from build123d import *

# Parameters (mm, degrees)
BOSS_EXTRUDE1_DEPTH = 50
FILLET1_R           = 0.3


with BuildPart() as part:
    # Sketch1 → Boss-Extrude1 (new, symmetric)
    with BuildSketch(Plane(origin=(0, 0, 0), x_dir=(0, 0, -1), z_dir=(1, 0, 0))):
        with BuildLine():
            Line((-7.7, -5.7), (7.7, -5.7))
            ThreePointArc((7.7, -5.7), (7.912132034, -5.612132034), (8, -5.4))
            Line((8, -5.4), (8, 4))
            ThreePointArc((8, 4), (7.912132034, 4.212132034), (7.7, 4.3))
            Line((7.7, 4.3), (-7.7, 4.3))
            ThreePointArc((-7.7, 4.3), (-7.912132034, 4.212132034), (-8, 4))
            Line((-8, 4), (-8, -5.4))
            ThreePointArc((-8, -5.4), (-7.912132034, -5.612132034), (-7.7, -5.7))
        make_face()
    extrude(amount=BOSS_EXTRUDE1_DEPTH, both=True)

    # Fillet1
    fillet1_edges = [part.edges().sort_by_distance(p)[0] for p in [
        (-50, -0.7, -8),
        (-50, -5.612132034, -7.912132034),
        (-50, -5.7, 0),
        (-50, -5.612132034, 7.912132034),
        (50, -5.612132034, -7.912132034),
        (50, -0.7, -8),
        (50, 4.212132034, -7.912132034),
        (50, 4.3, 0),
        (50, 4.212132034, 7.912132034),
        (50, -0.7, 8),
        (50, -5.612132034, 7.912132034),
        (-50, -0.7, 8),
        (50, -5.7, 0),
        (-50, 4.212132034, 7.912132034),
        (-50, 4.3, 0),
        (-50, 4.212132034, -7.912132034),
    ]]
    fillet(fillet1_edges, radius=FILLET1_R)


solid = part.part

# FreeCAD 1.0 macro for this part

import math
import FreeCAD as App
import Part
import Sketcher
from FreeCAD import Vector
Q = App.Units.Quantity


def edges_at(feature, points):
    """Names of the edges that pass closest to the given points."""
    edges = feature.Shape.Edges
    near = lambda p: min(range(len(edges)), key=lambda i: edges[i].distToShape(Part.Vertex(*p))[0])
    return sorted({f"Edge{near(p) + 1}" for p in points})

doc = App.newDocument("Part")
body = doc.addObject("PartDesign::Body", "Body")

# Sketch on YZ plane
sketch1 = doc.addObject("Sketcher::SketchObject", "Sketch")
body.addObject(sketch1)
sketch1.AttachmentSupport = (doc.YZ_Plane, [""])
sketch1.MapMode = "FlatFace"
sketch1.addGeometry([
    Part.LineSegment(Vector(-5.7, 7.7, 0), Vector(-5.7, -7.7, 0)),  # 0
    Part.ArcOfCircle(Part.Circle(Vector(-5.4, -7.7, 0), Vector(0, 0, 1), 0.3), math.radians(-180), math.radians(-90)),  # 1
    Part.LineSegment(Vector(-5.4, -8, 0), Vector(4, -8, 0)),  # 2
    Part.ArcOfCircle(Part.Circle(Vector(4, -7.7, 0), Vector(0, 0, 1), 0.3), math.radians(-90), math.radians(0)),  # 3
    Part.LineSegment(Vector(4.3, -7.7, 0), Vector(4.3, 7.7, 0)),  # 4
    Part.ArcOfCircle(Part.Circle(Vector(4, 7.7, 0), Vector(0, 0, 1), 0.3), math.radians(0), math.radians(90)),  # 5
    Part.LineSegment(Vector(4, 8, 0), Vector(-5.4, 8, 0)),  # 6
    Part.ArcOfCircle(Part.Circle(Vector(-5.4, 7.7, 0), Vector(0, 0, 1), 0.3), math.radians(90), math.radians(180)),  # 7
], False)
sketch1.addConstraint([
    Sketcher.Constraint("Tangent", 0, 2, 1, 1),
    Sketcher.Constraint("Tangent", 1, 2, 2, 1),
    Sketcher.Constraint("Tangent", 2, 2, 3, 1),
    Sketcher.Constraint("Tangent", 3, 2, 4, 1),
    Sketcher.Constraint("Tangent", 4, 2, 5, 1),
    Sketcher.Constraint("Tangent", 5, 2, 6, 1),
    Sketcher.Constraint("Tangent", 6, 2, 7, 1),
    Sketcher.Constraint("Tangent", 7, 2, 0, 1),
    Sketcher.Constraint("Vertical", 0),
    Sketcher.Constraint("Horizontal", 2),
    Sketcher.Constraint("Vertical", 4),
    Sketcher.Constraint("Horizontal", 6),
    Sketcher.Constraint("Equal", 1, 3),
    Sketcher.Constraint("Equal", 3, 5),
    Sketcher.Constraint("Equal", 5, 7),
    Sketcher.Constraint("Radius", 1, Q("0.3 mm")),
    Sketcher.Constraint("DistanceX", 2, 1, 2, 2, Q("9.4 mm")),
    Sketcher.Constraint("DistanceY", 0, 2, 0, 1, Q("15.4 mm")),
    Sketcher.Constraint("DistanceX", -1, 1, 3, 3, Q("4 mm")),
    Sketcher.Constraint("DistanceY", 1, 2, -1, 1, Q("8 mm")),
])
pad1 = doc.addObject("PartDesign::Pad", "Pad")
body.addObject(pad1)
pad1.Profile = sketch1
pad1.Length = 100
pad1.Midplane = True
doc.recompute()

fillet = doc.addObject("PartDesign::Fillet", "Fillet")
body.addObject(fillet)
fillet.Base = (pad1, edges_at(pad1, [
    (-50, -0.7, -8),
    (-50, -5.612, -7.912),
    (-50, -5.7, 0),
    (-50, -5.612, 7.912),
    (50, -5.612, -7.912),
    (50, -0.7, -8),
    (50, 4.212, -7.912),
    (50, 4.3, 0),
    (50, 4.212, 7.912),
    (50, -0.7, 8),
    (50, -5.612, 7.912),
    (-50, -0.7, 8),
    (50, -5.7, 0),
    (-50, 4.212, 7.912),
    (-50, 4.3, 0),
    (-50, 4.212, -7.912),
]))
fillet.Radius = 0.3

doc.recompute()
